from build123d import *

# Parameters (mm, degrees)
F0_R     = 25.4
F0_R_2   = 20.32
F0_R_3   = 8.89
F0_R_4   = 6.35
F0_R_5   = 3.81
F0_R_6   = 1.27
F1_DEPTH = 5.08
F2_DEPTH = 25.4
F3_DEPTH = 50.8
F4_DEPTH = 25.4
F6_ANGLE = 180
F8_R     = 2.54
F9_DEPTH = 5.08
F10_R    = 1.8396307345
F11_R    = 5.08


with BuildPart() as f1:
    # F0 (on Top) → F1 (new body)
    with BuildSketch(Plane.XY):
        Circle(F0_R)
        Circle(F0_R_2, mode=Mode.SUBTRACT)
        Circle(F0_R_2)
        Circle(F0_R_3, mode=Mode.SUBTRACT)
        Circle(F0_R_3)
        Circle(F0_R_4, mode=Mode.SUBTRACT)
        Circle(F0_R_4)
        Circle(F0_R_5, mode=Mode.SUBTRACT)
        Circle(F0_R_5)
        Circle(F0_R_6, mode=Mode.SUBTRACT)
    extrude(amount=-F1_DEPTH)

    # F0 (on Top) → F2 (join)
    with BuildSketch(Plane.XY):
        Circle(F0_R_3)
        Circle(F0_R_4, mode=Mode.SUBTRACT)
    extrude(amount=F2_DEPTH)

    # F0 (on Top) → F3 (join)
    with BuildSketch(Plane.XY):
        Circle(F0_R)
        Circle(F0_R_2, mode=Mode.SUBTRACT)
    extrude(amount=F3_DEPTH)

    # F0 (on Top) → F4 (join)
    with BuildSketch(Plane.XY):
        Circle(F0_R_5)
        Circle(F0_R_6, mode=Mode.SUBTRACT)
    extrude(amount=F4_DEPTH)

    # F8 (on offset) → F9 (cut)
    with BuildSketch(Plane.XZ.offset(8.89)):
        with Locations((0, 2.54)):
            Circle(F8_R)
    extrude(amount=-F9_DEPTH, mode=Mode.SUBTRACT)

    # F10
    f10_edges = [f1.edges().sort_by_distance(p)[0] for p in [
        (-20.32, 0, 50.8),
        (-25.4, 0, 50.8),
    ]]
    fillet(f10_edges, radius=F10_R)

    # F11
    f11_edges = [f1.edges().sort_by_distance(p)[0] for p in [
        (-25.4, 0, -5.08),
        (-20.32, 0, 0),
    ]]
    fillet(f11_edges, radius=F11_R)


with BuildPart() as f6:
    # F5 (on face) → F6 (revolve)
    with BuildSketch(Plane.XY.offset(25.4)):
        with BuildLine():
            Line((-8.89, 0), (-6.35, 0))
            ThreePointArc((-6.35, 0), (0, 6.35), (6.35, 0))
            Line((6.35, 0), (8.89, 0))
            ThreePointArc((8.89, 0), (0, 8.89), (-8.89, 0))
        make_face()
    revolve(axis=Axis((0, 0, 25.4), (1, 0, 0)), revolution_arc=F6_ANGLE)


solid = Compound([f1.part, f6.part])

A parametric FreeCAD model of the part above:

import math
import FreeCAD as App
import Part
import Sketcher
Q = App.Units.Quantity


def edges_at(feature, points):
    """Names of the edges that pass closest to the given points."""
    edges = feature.Shape.Edges
    near = lambda p: min(range(len(edges)), key=lambda i: edges[i].distToShape(Part.Vertex(*p))[0])
    return sorted({f"Edge{near(p) + 1}" for p in points})

doc = App.newDocument("Part")
body = doc.addObject("PartDesign::Body", "Body")

# Sketch on XY plane
sketch1 = body.newObject("Sketcher::SketchObject", "Sketch")
sketch1.AttachmentSupport = (doc.getObject("XY_Plane"), [""])
sketch1.MapMode = "FlatFace"
sketch1.addGeometry([
    Part.Circle(App.Vector(0, 0, 0), App.Vector(0, 0, 1), 25.4),
    Part.Circle(App.Vector(0, 0, 0), App.Vector(0, 0, 1), 1.27),
], False)
sketch1.addConstraint([
    Sketcher.Constraint("Coincident", 0, 3, -1, 1),
    Sketcher.Constraint("Coincident", 1, 3, -1, 1),
    Sketcher.Constraint("Diameter", 0, Q("2 in")),
    Sketcher.Constraint("Diameter", 1, Q("0.1 in")),
])
pad1 = body.newObject("PartDesign::Pad", "Pad")
pad1.Profile = sketch1
pad1.Length = Q("0.2 in")
pad1.Reversed = True

# Sketch on XY plane
sketch2 = body.newObject("Sketcher::SketchObject", "Sketch001")
sketch2.AttachmentSupport = (doc.getObject("XY_Plane"), [""])
sketch2.MapMode = "FlatFace"
sketch2.addGeometry([
    Part.Circle(App.Vector(0, 0, 0), App.Vector(0, 0, 1), 8.89),
    Part.Circle(App.Vector(0, 0, 0), App.Vector(0, 0, 1), 6.35),
], False)
sketch2.addConstraint([
    Sketcher.Constraint("Coincident", 0, 3, -1, 1),
    Sketcher.Constraint("Coincident", 1, 3, -1, 1),
    Sketcher.Constraint("Diameter", 0, Q("0.7 in")),
    Sketcher.Constraint("Diameter", 1, Q("0.5 in")),
])
pad2 = body.newObject("PartDesign::Pad", "Pad001")
pad2.Profile = sketch2
pad2.Length = Q("1 in")

# Sketch on XY plane
sketch3 = body.newObject("Sketcher::SketchObject", "Sketch002")
sketch3.AttachmentSupport = (doc.getObject("XY_Plane"), [""])
sketch3.MapMode = "FlatFace"
sketch3.addGeometry([
    Part.Circle(App.Vector(0, 0, 0), App.Vector(0, 0, 1), 25.4),
    Part.Circle(App.Vector(0, 0, 0), App.Vector(0, 0, 1), 20.32),
], False)
sketch3.addConstraint([
    Sketcher.Constraint("Coincident", 0, 3, -1, 1),
    Sketcher.Constraint("Coincident", 1, 3, -1, 1),
    Sketcher.Constraint("Diameter", 0, Q("2 in")),
    Sketcher.Constraint("Diameter", 1, Q("1.6 in")),
])
pad3 = body.newObject("PartDesign::Pad", "Pad002")
pad3.Profile = sketch3
pad3.Length = Q("2 in")

# Sketch on XY plane
sketch4 = body.newObject("Sketcher::SketchObject", "Sketch003")
sketch4.AttachmentSupport = (doc.getObject("XY_Plane"), [""])
sketch4.MapMode = "FlatFace"
sketch4.addGeometry([
    Part.Circle(App.Vector(0, 0, 0), App.Vector(0, 0, 1), 3.81),
    Part.Circle(App.Vector(0, 0, 0), App.Vector(0, 0, 1), 1.27),
], False)
sketch4.addConstraint([
    Sketcher.Constraint("Coincident", 0, 3, -1, 1),
    Sketcher.Constraint("Coincident", 1, 3, -1, 1),
    Sketcher.Constraint("Diameter", 0, Q("0.3 in")),
    Sketcher.Constraint("Diameter", 1, Q("0.1 in")),
])
pad4 = body.newObject("PartDesign::Pad", "Pad003")
pad4.Profile = sketch4
pad4.Length = Q("1 in")

# Sketch on XZ plane
sketch5 = body.newObject("Sketcher::SketchObject", "Sketch004")
sketch5.AttachmentSupport = (doc.getObject("XZ_Plane"), [""])
sketch5.MapMode = "FlatFace"
sketch5.AttachmentOffset = App.Placement(App.Vector(0, 0, 0.35 * 25.4), App.Rotation())
sketch5.addGeometry(Part.Circle(App.Vector(0, 2.54, 0), App.Vector(0, 0, 1), 2.54), False)
sketch5.addConstraint([
    Sketcher.Constraint("PointOnObject", 0, 3, -2),
    Sketcher.Constraint("Diameter", 0, Q("0.2 in")),
    Sketcher.Constraint("DistanceY", -1, 1, 0, 3, Q("0.1 in")),
])
pocket1 = body.newObject("PartDesign::Pocket", "Pocket")
pocket1.Profile = sketch5
pocket1.Length = Q("0.2 in")
doc.recompute()

fillet = body.newObject("PartDesign::Fillet", "Fillet")
fillet.Base = (pocket1, edges_at(pocket1, [(-20.32, 0, 50.8), (-25.4, 0, 50.8)]))
fillet.Radius = 1.839631
doc.recompute()

fillet2 = body.newObject("PartDesign::Fillet", "Fillet001")
fillet2.Base = (fillet, edges_at(fillet, [(-25.4, 0, -5.08), (-20.32, 0, 0)]))
fillet2.Radius = Q("0.2 in")
body2 = doc.addObject("PartDesign::Body", "Body001")

# Sketch on XY plane
sketch6 = body2.newObject("Sketcher::SketchObject", "Sketch005")
sketch6.AttachmentSupport = (doc.getObject("XY_Plane001"), [""])
sketch6.MapMode = "FlatFace"
sketch6.AttachmentOffset = App.Placement(App.Vector(0, 0, 1 * 25.4), App.Rotation())
sketch6.addGeometry([
    Part.LineSegment(App.Vector(-8.89, 0, 0), App.Vector(-6.35, 0, 0)),
    Part.ArcOfCircle(Part.Circle(App.Vector(0, 0, 0), App.Vector(0, 0, 1), 6.35), math.radians(0), math.radians(180)),
    Part.LineSegment(App.Vector(6.35, 0, 0), App.Vector(8.89, 0, 0)),
    Part.ArcOfCircle(Part.Circle(App.Vector(0, 0, 0), App.Vector(0, 0, 1), 8.89), math.radians(0), math.radians(180)),
], False)
sketch6.addConstraint([
    Sketcher.Constraint("Coincident", 0, 2, 1, 2),
    Sketcher.Constraint("Coincident", 1, 1, 2, 1),
    Sketcher.Constraint("Coincident", 2, 2, 3, 1),
    Sketcher.Constraint("Coincident", 3, 2, 0, 1),
    Sketcher.Constraint("Horizontal", 0),
    Sketcher.Constraint("Horizontal", 2),
    Sketcher.Constraint("Coincident", 1, 3, -1, 1),
    Sketcher.Constraint("Coincident", 3, 3, -1, 1),
    Sketcher.Constraint("PointOnObject", 0, 2, -1),
    Sketcher.Constraint("PointOnObject", 1, 1, -1),
    Sketcher.Constraint("Radius", 1, Q("0.25 in")),
    Sketcher.Constraint("Radius", 3, Q("0.35 in")),
])
revolution = body2.newObject("PartDesign::Revolution", "Revolution")
revolution.Profile = sketch6
revolution.ReferenceAxis = (sketch6, ["H_Axis"])
revolution.Angle = 180

doc.recompute()
